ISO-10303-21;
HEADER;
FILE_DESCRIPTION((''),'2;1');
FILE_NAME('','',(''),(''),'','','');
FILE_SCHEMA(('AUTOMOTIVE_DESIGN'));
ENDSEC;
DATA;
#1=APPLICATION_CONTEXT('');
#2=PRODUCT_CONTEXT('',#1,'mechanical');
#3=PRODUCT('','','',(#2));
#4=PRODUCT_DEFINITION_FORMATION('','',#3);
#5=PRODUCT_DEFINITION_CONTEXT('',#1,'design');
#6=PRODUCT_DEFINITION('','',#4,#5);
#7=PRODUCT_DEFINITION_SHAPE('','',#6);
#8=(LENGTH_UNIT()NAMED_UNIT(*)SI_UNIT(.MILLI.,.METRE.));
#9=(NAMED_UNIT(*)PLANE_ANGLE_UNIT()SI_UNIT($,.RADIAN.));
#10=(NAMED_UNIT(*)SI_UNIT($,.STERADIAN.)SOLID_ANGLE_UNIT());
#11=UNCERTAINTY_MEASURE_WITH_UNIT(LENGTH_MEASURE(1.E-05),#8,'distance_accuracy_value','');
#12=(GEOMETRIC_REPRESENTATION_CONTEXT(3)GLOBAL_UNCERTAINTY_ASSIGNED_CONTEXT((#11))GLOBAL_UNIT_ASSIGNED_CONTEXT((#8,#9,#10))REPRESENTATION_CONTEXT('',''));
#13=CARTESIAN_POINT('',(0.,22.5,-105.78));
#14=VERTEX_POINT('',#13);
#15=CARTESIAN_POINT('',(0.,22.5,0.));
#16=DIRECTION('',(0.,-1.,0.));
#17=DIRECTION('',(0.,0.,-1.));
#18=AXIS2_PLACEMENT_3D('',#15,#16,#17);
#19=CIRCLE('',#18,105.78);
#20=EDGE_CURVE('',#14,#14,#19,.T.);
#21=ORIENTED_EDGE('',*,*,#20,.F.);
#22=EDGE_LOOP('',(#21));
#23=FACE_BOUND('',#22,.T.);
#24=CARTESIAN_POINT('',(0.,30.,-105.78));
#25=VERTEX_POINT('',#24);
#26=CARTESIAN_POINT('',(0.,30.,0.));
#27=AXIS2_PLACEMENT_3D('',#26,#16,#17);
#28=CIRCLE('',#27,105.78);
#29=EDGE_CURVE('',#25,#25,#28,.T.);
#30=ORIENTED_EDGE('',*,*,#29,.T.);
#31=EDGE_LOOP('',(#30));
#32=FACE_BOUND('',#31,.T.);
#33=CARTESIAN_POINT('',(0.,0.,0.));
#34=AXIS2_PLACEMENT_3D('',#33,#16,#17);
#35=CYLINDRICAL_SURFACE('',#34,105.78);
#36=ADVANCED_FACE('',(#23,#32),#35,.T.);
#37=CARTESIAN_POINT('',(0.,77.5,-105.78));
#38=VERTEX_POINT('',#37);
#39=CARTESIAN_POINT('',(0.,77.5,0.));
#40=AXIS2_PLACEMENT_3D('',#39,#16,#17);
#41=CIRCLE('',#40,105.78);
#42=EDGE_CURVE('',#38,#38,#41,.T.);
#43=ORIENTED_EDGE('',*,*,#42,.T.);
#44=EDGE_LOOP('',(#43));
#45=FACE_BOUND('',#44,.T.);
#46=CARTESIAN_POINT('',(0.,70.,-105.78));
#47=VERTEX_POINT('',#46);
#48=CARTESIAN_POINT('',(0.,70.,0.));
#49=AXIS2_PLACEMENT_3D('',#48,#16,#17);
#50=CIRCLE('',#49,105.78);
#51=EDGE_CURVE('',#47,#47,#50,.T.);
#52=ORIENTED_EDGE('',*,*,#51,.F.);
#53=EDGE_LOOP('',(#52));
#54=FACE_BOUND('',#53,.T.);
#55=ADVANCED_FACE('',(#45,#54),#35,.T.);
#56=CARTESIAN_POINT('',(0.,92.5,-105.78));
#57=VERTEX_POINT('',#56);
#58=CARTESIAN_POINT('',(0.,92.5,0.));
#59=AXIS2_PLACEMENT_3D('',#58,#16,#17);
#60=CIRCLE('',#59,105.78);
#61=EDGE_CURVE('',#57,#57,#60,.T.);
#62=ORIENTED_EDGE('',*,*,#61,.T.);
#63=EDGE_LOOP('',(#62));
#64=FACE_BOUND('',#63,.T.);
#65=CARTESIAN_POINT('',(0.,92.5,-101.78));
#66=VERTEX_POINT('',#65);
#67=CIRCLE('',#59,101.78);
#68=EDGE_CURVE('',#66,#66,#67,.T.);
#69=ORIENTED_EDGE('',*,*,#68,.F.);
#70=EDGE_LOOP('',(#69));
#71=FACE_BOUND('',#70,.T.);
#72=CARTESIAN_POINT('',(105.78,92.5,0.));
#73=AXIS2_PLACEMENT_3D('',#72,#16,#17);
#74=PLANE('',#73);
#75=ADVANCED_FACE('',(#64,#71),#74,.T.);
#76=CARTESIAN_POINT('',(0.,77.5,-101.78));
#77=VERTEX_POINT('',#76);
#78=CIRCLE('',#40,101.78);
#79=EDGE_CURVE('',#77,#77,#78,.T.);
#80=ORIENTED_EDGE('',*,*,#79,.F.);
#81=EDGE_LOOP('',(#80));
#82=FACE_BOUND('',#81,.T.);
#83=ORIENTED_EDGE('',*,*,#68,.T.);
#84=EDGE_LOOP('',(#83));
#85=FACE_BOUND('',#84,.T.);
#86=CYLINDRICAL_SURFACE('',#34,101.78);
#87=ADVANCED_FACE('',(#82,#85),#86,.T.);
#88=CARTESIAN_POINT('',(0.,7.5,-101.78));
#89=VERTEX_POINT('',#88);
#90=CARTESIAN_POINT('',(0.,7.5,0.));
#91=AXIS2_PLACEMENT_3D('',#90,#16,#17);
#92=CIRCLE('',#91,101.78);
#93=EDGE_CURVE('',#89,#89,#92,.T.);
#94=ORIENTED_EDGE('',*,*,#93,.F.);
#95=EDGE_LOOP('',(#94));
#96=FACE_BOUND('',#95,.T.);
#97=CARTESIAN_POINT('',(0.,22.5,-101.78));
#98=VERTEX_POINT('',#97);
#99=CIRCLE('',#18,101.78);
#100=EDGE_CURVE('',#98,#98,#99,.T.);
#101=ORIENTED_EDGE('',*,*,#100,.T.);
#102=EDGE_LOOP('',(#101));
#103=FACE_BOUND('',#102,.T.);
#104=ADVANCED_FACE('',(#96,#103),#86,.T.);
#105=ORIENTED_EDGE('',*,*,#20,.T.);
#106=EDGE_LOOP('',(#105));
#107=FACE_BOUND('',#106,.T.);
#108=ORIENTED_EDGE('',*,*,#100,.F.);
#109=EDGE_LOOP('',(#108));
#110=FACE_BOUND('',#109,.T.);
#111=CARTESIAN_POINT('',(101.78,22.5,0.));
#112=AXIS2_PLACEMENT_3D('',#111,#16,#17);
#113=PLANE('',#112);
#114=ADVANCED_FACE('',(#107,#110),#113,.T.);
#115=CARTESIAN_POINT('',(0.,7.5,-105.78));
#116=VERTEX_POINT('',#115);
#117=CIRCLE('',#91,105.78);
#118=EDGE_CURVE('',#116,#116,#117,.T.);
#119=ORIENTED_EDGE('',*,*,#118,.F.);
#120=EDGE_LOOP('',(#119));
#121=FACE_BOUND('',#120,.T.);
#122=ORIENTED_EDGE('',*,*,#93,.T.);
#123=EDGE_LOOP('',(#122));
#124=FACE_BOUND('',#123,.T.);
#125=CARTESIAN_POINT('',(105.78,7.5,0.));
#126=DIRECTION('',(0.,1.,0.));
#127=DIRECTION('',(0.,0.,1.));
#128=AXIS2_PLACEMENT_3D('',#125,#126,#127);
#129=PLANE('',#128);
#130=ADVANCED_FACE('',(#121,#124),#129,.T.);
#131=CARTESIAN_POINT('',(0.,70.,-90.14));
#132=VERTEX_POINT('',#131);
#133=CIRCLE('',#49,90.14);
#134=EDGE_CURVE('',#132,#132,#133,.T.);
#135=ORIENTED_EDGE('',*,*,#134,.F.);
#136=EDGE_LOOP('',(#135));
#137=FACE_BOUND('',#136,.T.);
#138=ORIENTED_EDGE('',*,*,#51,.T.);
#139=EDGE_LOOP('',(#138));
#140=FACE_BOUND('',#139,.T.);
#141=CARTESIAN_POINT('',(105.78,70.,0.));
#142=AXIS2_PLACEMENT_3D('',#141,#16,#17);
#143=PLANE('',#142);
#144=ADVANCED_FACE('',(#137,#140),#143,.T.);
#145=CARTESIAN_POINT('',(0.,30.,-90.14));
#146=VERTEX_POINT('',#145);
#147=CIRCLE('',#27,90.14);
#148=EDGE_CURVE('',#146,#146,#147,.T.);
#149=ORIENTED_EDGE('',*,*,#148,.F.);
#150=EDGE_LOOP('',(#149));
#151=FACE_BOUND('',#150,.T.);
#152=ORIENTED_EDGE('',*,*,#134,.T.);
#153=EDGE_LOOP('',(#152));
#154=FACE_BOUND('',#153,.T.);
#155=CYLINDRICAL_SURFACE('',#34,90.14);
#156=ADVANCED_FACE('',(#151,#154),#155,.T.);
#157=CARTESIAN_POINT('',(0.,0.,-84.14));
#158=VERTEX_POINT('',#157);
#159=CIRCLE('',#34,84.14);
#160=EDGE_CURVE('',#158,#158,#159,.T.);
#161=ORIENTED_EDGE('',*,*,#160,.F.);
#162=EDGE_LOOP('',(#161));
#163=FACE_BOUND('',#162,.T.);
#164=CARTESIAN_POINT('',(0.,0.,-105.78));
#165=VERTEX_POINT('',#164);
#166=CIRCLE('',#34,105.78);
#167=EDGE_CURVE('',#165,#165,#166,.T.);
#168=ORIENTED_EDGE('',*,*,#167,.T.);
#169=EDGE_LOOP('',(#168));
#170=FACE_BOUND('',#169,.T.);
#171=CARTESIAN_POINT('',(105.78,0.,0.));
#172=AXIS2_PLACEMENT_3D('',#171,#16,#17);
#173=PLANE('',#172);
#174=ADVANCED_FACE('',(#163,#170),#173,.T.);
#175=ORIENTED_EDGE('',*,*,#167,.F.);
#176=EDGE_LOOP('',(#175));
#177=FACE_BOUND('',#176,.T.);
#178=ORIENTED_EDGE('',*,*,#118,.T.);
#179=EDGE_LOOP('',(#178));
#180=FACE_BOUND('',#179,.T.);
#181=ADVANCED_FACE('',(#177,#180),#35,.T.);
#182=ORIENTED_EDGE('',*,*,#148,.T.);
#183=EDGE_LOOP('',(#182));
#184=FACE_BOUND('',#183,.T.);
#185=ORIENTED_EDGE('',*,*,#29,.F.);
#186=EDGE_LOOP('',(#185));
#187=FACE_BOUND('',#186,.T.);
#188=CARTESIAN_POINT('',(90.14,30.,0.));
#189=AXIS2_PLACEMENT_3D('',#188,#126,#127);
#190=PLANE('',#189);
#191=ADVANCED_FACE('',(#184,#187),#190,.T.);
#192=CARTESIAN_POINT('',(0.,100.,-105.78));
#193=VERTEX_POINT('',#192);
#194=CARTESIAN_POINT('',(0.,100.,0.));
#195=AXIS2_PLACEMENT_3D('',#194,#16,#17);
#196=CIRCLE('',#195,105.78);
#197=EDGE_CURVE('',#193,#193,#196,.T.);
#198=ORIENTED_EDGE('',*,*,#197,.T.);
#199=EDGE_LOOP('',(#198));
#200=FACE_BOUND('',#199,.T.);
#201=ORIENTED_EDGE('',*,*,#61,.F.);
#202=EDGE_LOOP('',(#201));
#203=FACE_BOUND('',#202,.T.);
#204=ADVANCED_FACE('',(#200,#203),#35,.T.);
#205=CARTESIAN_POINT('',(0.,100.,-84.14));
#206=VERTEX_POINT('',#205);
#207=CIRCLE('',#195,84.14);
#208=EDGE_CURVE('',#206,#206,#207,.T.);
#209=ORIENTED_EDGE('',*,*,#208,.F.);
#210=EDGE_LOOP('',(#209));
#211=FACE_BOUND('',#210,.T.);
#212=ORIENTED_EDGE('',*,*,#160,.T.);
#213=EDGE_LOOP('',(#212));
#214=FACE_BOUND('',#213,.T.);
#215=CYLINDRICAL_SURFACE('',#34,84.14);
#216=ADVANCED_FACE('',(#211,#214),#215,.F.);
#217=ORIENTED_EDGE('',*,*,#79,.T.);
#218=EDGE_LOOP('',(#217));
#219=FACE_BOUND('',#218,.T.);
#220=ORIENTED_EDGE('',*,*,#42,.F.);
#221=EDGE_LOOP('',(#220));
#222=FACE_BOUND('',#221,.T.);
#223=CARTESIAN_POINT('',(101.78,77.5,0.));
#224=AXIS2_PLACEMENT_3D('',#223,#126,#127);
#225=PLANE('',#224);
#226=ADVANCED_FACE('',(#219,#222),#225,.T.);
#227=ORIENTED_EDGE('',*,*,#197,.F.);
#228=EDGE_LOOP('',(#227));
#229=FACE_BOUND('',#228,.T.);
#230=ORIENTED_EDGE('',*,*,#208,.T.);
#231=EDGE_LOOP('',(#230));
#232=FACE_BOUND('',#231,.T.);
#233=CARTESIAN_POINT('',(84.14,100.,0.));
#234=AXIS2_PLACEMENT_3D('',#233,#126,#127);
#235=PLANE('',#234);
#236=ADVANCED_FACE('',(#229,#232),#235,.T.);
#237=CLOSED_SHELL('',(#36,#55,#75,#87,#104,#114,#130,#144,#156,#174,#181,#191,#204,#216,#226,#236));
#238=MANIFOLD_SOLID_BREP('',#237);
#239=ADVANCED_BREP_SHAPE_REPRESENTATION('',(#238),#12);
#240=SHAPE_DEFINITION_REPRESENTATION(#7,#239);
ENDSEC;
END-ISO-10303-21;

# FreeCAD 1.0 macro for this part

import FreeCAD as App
import Part
import Sketcher

doc = App.newDocument("Part")
body = doc.addObject("PartDesign::Body", "Body")

# Sketch on XY plane
sketch1 = body.newObject("Sketcher::SketchObject", "Sketch")
sketch1.AttachmentSupport = (doc.getObject("XY_Plane"), [""])
sketch1.MapMode = "FlatFace"
sketch1.addGeometry(Part.LineSegment(App.Vector(105.8, 100, 0), App.Vector(84.1, 100, 0)), False)
sketch1.addGeometry(Part.LineSegment(App.Vector(84.1, 100, 0), App.Vector(84.1, 0, 0)), False)
sketch1.addGeometry(Part.LineSegment(App.Vector(84.1, 0, 0), App.Vector(105.8, 0, 0)), False)
sketch1.addGeometry(Part.LineSegment(App.Vector(105.8, 0, 0), App.Vector(105.8, 7.5, 0)), False)
sketch1.addGeometry(Part.LineSegment(App.Vector(105.8, 7.5, 0), App.Vector(101.8, 7.5, 0)), False)
sketch1.addGeometry(Part.LineSegment(App.Vector(101.8, 7.5, 0), App.Vector(101.8, 22.5, 0)), False)
sketch1.addGeometry(Part.LineSegment(App.Vector(101.8, 22.5, 0), App.Vector(105.8, 22.5, 0)), False)
sketch1.addGeometry(Part.LineSegment(App.Vector(105.8, 22.5, 0), App.Vector(105.8, 30, 0)), False)
sketch1.addGeometry(Part.LineSegment(App.Vector(105.8, 30, 0), App.Vector(90.1, 30, 0)), False)
sketch1.addGeometry(Part.LineSegment(App.Vector(90.1, 30, 0), App.Vector(90.1, 70, 0)), False)
sketch1.addGeometry(Part.LineSegment(App.Vector(90.1, 70, 0), App.Vector(105.8, 70, 0)), False)
sketch1.addGeometry(Part.LineSegment(App.Vector(105.8, 70, 0), App.Vector(105.8, 77.5, 0)), False)
sketch1.addGeometry(Part.LineSegment(App.Vector(105.8, 77.5, 0), App.Vector(101.8, 77.5, 0)), False)
sketch1.addGeometry(Part.LineSegment(App.Vector(101.8, 77.5, 0), App.Vector(101.8, 92.5, 0)), False)
sketch1.addGeometry(Part.LineSegment(App.Vector(101.8, 92.5, 0), App.Vector(105.8, 92.5, 0)), False)
sketch1.addGeometry(Part.LineSegment(App.Vector(105.8, 92.5, 0), App.Vector(105.8, 100, 0)), False)
sketch1.addConstraint(Sketcher.Constraint("Coincident", 0, 2, 1, 1))
sketch1.addConstraint(Sketcher.Constraint("Coincident", 1, 2, 2, 1))
sketch1.addConstraint(Sketcher.Constraint("Coincident", 2, 2, 3, 1))
sketch1.addConstraint(Sketcher.Constraint("Coincident", 3, 2, 4, 1))
sketch1.addConstraint(Sketcher.Constraint("Coincident", 4, 2, 5, 1))
sketch1.addConstraint(Sketcher.Constraint("Coincident", 5, 2, 6, 1))
sketch1.addConstraint(Sketcher.Constraint("Coincident", 6, 2, 7, 1))
sketch1.addConstraint(Sketcher.Constraint("Coincident", 7, 2, 8, 1))
sketch1.addConstraint(Sketcher.Constraint("Coincident", 8, 2, 9, 1))
sketch1.addConstraint(Sketcher.Constraint("Coincident", 9, 2, 10, 1))
sketch1.addConstraint(Sketcher.Constraint("Coincident", 10, 2, 11, 1))
sketch1.addConstraint(Sketcher.Constraint("Coincident", 11, 2, 12, 1))
sketch1.addConstraint(Sketcher.Constraint("Coincident", 12, 2, 13, 1))
sketch1.addConstraint(Sketcher.Constraint("Coincident", 13, 2, 14, 1))
sketch1.addConstraint(Sketcher.Constraint("Coincident", 14, 2, 15, 1))
sketch1.addConstraint(Sketcher.Constraint("Coincident", 15, 2, 0, 1))
sketch1.addConstraint(Sketcher.Constraint("Horizontal", 0))
sketch1.addConstraint(Sketcher.Constraint("Vertical", 1))
sketch1.addConstraint(Sketcher.Constraint("Horizontal", 2))
sketch1.addConstraint(Sketcher.Constraint("Vertical", 3))
sketch1.addConstraint(Sketcher.Constraint("Horizontal", 4))
sketch1.addConstraint(Sketcher.Constraint("Vertical", 5))
sketch1.addConstraint(Sketcher.Constraint("Horizontal", 6))
sketch1.addConstraint(Sketcher.Constraint("Vertical", 7))
sketch1.addConstraint(Sketcher.Constraint("Horizontal", 8))
sketch1.addConstraint(Sketcher.Constraint("Vertical", 9))
sketch1.addConstraint(Sketcher.Constraint("Horizontal", 10))
sketch1.addConstraint(Sketcher.Constraint("Vertical", 11))
sketch1.addConstraint(Sketcher.Constraint("Horizontal", 12))
sketch1.addConstraint(Sketcher.Constraint("Vertical", 13))
sketch1.addConstraint(Sketcher.Constraint("Horizontal", 14))
sketch1.addConstraint(Sketcher.Constraint("Vertical", 15))
sketch1.addConstraint(Sketcher.Constraint("PointOnObject", 1, 2, -1))
sketch1.addConstraint(Sketcher.Constraint("Vertical", 3, 2, 6, 2))
sketch1.addConstraint(Sketcher.Constraint("Vertical", 7, 2, 10, 2))
sketch1.addConstraint(Sketcher.Constraint("Vertical", 5, 2, 12, 2))
sketch1.addConstraint(Sketcher.Constraint("Vertical", 11, 2, 14, 2))
sketch1.addConstraint(Sketcher.Constraint("Equal", 3, 7))
sketch1.addConstraint(Sketcher.Constraint("Equal", 7, 11))
sketch1.addConstraint(Sketcher.Constraint("Equal", 5, 13))
sketch1.addConstraint(Sketcher.Constraint("Equal", 11, 15))
sketch1.addConstraint(Sketcher.Constraint("DistanceX", 4, 2, 4, 1, 4.0))
sketch1.addConstraint(Sketcher.Constraint("DistanceY", 1, 2, 1, 1, 100.0))
sketch1.addConstraint(Sketcher.Constraint("DistanceY", 5, 1, 5, 2, 15.0))
sketch1.addConstraint(Sketcher.Constraint("DistanceY", 9, 1, 9, 2, 40.0))
sketch1.addConstraint(Sketcher.Constraint("DistanceX", 0, 2, 9, 2, 6.0))
sketch1.addConstraint(Sketcher.Constraint("DistanceX", 0, 2, 0, 1, 21.64))
sketch1.addConstraint(Sketcher.Constraint("DistanceX", -1, 1, 0, 2, 84.14))
revolution = body.newObject("PartDesign::Revolution", "Revolution")
revolution.Profile = sketch1
revolution.ReferenceAxis = (sketch1, ["V_Axis"])
revolution.Angle = 360

doc.recompute()
